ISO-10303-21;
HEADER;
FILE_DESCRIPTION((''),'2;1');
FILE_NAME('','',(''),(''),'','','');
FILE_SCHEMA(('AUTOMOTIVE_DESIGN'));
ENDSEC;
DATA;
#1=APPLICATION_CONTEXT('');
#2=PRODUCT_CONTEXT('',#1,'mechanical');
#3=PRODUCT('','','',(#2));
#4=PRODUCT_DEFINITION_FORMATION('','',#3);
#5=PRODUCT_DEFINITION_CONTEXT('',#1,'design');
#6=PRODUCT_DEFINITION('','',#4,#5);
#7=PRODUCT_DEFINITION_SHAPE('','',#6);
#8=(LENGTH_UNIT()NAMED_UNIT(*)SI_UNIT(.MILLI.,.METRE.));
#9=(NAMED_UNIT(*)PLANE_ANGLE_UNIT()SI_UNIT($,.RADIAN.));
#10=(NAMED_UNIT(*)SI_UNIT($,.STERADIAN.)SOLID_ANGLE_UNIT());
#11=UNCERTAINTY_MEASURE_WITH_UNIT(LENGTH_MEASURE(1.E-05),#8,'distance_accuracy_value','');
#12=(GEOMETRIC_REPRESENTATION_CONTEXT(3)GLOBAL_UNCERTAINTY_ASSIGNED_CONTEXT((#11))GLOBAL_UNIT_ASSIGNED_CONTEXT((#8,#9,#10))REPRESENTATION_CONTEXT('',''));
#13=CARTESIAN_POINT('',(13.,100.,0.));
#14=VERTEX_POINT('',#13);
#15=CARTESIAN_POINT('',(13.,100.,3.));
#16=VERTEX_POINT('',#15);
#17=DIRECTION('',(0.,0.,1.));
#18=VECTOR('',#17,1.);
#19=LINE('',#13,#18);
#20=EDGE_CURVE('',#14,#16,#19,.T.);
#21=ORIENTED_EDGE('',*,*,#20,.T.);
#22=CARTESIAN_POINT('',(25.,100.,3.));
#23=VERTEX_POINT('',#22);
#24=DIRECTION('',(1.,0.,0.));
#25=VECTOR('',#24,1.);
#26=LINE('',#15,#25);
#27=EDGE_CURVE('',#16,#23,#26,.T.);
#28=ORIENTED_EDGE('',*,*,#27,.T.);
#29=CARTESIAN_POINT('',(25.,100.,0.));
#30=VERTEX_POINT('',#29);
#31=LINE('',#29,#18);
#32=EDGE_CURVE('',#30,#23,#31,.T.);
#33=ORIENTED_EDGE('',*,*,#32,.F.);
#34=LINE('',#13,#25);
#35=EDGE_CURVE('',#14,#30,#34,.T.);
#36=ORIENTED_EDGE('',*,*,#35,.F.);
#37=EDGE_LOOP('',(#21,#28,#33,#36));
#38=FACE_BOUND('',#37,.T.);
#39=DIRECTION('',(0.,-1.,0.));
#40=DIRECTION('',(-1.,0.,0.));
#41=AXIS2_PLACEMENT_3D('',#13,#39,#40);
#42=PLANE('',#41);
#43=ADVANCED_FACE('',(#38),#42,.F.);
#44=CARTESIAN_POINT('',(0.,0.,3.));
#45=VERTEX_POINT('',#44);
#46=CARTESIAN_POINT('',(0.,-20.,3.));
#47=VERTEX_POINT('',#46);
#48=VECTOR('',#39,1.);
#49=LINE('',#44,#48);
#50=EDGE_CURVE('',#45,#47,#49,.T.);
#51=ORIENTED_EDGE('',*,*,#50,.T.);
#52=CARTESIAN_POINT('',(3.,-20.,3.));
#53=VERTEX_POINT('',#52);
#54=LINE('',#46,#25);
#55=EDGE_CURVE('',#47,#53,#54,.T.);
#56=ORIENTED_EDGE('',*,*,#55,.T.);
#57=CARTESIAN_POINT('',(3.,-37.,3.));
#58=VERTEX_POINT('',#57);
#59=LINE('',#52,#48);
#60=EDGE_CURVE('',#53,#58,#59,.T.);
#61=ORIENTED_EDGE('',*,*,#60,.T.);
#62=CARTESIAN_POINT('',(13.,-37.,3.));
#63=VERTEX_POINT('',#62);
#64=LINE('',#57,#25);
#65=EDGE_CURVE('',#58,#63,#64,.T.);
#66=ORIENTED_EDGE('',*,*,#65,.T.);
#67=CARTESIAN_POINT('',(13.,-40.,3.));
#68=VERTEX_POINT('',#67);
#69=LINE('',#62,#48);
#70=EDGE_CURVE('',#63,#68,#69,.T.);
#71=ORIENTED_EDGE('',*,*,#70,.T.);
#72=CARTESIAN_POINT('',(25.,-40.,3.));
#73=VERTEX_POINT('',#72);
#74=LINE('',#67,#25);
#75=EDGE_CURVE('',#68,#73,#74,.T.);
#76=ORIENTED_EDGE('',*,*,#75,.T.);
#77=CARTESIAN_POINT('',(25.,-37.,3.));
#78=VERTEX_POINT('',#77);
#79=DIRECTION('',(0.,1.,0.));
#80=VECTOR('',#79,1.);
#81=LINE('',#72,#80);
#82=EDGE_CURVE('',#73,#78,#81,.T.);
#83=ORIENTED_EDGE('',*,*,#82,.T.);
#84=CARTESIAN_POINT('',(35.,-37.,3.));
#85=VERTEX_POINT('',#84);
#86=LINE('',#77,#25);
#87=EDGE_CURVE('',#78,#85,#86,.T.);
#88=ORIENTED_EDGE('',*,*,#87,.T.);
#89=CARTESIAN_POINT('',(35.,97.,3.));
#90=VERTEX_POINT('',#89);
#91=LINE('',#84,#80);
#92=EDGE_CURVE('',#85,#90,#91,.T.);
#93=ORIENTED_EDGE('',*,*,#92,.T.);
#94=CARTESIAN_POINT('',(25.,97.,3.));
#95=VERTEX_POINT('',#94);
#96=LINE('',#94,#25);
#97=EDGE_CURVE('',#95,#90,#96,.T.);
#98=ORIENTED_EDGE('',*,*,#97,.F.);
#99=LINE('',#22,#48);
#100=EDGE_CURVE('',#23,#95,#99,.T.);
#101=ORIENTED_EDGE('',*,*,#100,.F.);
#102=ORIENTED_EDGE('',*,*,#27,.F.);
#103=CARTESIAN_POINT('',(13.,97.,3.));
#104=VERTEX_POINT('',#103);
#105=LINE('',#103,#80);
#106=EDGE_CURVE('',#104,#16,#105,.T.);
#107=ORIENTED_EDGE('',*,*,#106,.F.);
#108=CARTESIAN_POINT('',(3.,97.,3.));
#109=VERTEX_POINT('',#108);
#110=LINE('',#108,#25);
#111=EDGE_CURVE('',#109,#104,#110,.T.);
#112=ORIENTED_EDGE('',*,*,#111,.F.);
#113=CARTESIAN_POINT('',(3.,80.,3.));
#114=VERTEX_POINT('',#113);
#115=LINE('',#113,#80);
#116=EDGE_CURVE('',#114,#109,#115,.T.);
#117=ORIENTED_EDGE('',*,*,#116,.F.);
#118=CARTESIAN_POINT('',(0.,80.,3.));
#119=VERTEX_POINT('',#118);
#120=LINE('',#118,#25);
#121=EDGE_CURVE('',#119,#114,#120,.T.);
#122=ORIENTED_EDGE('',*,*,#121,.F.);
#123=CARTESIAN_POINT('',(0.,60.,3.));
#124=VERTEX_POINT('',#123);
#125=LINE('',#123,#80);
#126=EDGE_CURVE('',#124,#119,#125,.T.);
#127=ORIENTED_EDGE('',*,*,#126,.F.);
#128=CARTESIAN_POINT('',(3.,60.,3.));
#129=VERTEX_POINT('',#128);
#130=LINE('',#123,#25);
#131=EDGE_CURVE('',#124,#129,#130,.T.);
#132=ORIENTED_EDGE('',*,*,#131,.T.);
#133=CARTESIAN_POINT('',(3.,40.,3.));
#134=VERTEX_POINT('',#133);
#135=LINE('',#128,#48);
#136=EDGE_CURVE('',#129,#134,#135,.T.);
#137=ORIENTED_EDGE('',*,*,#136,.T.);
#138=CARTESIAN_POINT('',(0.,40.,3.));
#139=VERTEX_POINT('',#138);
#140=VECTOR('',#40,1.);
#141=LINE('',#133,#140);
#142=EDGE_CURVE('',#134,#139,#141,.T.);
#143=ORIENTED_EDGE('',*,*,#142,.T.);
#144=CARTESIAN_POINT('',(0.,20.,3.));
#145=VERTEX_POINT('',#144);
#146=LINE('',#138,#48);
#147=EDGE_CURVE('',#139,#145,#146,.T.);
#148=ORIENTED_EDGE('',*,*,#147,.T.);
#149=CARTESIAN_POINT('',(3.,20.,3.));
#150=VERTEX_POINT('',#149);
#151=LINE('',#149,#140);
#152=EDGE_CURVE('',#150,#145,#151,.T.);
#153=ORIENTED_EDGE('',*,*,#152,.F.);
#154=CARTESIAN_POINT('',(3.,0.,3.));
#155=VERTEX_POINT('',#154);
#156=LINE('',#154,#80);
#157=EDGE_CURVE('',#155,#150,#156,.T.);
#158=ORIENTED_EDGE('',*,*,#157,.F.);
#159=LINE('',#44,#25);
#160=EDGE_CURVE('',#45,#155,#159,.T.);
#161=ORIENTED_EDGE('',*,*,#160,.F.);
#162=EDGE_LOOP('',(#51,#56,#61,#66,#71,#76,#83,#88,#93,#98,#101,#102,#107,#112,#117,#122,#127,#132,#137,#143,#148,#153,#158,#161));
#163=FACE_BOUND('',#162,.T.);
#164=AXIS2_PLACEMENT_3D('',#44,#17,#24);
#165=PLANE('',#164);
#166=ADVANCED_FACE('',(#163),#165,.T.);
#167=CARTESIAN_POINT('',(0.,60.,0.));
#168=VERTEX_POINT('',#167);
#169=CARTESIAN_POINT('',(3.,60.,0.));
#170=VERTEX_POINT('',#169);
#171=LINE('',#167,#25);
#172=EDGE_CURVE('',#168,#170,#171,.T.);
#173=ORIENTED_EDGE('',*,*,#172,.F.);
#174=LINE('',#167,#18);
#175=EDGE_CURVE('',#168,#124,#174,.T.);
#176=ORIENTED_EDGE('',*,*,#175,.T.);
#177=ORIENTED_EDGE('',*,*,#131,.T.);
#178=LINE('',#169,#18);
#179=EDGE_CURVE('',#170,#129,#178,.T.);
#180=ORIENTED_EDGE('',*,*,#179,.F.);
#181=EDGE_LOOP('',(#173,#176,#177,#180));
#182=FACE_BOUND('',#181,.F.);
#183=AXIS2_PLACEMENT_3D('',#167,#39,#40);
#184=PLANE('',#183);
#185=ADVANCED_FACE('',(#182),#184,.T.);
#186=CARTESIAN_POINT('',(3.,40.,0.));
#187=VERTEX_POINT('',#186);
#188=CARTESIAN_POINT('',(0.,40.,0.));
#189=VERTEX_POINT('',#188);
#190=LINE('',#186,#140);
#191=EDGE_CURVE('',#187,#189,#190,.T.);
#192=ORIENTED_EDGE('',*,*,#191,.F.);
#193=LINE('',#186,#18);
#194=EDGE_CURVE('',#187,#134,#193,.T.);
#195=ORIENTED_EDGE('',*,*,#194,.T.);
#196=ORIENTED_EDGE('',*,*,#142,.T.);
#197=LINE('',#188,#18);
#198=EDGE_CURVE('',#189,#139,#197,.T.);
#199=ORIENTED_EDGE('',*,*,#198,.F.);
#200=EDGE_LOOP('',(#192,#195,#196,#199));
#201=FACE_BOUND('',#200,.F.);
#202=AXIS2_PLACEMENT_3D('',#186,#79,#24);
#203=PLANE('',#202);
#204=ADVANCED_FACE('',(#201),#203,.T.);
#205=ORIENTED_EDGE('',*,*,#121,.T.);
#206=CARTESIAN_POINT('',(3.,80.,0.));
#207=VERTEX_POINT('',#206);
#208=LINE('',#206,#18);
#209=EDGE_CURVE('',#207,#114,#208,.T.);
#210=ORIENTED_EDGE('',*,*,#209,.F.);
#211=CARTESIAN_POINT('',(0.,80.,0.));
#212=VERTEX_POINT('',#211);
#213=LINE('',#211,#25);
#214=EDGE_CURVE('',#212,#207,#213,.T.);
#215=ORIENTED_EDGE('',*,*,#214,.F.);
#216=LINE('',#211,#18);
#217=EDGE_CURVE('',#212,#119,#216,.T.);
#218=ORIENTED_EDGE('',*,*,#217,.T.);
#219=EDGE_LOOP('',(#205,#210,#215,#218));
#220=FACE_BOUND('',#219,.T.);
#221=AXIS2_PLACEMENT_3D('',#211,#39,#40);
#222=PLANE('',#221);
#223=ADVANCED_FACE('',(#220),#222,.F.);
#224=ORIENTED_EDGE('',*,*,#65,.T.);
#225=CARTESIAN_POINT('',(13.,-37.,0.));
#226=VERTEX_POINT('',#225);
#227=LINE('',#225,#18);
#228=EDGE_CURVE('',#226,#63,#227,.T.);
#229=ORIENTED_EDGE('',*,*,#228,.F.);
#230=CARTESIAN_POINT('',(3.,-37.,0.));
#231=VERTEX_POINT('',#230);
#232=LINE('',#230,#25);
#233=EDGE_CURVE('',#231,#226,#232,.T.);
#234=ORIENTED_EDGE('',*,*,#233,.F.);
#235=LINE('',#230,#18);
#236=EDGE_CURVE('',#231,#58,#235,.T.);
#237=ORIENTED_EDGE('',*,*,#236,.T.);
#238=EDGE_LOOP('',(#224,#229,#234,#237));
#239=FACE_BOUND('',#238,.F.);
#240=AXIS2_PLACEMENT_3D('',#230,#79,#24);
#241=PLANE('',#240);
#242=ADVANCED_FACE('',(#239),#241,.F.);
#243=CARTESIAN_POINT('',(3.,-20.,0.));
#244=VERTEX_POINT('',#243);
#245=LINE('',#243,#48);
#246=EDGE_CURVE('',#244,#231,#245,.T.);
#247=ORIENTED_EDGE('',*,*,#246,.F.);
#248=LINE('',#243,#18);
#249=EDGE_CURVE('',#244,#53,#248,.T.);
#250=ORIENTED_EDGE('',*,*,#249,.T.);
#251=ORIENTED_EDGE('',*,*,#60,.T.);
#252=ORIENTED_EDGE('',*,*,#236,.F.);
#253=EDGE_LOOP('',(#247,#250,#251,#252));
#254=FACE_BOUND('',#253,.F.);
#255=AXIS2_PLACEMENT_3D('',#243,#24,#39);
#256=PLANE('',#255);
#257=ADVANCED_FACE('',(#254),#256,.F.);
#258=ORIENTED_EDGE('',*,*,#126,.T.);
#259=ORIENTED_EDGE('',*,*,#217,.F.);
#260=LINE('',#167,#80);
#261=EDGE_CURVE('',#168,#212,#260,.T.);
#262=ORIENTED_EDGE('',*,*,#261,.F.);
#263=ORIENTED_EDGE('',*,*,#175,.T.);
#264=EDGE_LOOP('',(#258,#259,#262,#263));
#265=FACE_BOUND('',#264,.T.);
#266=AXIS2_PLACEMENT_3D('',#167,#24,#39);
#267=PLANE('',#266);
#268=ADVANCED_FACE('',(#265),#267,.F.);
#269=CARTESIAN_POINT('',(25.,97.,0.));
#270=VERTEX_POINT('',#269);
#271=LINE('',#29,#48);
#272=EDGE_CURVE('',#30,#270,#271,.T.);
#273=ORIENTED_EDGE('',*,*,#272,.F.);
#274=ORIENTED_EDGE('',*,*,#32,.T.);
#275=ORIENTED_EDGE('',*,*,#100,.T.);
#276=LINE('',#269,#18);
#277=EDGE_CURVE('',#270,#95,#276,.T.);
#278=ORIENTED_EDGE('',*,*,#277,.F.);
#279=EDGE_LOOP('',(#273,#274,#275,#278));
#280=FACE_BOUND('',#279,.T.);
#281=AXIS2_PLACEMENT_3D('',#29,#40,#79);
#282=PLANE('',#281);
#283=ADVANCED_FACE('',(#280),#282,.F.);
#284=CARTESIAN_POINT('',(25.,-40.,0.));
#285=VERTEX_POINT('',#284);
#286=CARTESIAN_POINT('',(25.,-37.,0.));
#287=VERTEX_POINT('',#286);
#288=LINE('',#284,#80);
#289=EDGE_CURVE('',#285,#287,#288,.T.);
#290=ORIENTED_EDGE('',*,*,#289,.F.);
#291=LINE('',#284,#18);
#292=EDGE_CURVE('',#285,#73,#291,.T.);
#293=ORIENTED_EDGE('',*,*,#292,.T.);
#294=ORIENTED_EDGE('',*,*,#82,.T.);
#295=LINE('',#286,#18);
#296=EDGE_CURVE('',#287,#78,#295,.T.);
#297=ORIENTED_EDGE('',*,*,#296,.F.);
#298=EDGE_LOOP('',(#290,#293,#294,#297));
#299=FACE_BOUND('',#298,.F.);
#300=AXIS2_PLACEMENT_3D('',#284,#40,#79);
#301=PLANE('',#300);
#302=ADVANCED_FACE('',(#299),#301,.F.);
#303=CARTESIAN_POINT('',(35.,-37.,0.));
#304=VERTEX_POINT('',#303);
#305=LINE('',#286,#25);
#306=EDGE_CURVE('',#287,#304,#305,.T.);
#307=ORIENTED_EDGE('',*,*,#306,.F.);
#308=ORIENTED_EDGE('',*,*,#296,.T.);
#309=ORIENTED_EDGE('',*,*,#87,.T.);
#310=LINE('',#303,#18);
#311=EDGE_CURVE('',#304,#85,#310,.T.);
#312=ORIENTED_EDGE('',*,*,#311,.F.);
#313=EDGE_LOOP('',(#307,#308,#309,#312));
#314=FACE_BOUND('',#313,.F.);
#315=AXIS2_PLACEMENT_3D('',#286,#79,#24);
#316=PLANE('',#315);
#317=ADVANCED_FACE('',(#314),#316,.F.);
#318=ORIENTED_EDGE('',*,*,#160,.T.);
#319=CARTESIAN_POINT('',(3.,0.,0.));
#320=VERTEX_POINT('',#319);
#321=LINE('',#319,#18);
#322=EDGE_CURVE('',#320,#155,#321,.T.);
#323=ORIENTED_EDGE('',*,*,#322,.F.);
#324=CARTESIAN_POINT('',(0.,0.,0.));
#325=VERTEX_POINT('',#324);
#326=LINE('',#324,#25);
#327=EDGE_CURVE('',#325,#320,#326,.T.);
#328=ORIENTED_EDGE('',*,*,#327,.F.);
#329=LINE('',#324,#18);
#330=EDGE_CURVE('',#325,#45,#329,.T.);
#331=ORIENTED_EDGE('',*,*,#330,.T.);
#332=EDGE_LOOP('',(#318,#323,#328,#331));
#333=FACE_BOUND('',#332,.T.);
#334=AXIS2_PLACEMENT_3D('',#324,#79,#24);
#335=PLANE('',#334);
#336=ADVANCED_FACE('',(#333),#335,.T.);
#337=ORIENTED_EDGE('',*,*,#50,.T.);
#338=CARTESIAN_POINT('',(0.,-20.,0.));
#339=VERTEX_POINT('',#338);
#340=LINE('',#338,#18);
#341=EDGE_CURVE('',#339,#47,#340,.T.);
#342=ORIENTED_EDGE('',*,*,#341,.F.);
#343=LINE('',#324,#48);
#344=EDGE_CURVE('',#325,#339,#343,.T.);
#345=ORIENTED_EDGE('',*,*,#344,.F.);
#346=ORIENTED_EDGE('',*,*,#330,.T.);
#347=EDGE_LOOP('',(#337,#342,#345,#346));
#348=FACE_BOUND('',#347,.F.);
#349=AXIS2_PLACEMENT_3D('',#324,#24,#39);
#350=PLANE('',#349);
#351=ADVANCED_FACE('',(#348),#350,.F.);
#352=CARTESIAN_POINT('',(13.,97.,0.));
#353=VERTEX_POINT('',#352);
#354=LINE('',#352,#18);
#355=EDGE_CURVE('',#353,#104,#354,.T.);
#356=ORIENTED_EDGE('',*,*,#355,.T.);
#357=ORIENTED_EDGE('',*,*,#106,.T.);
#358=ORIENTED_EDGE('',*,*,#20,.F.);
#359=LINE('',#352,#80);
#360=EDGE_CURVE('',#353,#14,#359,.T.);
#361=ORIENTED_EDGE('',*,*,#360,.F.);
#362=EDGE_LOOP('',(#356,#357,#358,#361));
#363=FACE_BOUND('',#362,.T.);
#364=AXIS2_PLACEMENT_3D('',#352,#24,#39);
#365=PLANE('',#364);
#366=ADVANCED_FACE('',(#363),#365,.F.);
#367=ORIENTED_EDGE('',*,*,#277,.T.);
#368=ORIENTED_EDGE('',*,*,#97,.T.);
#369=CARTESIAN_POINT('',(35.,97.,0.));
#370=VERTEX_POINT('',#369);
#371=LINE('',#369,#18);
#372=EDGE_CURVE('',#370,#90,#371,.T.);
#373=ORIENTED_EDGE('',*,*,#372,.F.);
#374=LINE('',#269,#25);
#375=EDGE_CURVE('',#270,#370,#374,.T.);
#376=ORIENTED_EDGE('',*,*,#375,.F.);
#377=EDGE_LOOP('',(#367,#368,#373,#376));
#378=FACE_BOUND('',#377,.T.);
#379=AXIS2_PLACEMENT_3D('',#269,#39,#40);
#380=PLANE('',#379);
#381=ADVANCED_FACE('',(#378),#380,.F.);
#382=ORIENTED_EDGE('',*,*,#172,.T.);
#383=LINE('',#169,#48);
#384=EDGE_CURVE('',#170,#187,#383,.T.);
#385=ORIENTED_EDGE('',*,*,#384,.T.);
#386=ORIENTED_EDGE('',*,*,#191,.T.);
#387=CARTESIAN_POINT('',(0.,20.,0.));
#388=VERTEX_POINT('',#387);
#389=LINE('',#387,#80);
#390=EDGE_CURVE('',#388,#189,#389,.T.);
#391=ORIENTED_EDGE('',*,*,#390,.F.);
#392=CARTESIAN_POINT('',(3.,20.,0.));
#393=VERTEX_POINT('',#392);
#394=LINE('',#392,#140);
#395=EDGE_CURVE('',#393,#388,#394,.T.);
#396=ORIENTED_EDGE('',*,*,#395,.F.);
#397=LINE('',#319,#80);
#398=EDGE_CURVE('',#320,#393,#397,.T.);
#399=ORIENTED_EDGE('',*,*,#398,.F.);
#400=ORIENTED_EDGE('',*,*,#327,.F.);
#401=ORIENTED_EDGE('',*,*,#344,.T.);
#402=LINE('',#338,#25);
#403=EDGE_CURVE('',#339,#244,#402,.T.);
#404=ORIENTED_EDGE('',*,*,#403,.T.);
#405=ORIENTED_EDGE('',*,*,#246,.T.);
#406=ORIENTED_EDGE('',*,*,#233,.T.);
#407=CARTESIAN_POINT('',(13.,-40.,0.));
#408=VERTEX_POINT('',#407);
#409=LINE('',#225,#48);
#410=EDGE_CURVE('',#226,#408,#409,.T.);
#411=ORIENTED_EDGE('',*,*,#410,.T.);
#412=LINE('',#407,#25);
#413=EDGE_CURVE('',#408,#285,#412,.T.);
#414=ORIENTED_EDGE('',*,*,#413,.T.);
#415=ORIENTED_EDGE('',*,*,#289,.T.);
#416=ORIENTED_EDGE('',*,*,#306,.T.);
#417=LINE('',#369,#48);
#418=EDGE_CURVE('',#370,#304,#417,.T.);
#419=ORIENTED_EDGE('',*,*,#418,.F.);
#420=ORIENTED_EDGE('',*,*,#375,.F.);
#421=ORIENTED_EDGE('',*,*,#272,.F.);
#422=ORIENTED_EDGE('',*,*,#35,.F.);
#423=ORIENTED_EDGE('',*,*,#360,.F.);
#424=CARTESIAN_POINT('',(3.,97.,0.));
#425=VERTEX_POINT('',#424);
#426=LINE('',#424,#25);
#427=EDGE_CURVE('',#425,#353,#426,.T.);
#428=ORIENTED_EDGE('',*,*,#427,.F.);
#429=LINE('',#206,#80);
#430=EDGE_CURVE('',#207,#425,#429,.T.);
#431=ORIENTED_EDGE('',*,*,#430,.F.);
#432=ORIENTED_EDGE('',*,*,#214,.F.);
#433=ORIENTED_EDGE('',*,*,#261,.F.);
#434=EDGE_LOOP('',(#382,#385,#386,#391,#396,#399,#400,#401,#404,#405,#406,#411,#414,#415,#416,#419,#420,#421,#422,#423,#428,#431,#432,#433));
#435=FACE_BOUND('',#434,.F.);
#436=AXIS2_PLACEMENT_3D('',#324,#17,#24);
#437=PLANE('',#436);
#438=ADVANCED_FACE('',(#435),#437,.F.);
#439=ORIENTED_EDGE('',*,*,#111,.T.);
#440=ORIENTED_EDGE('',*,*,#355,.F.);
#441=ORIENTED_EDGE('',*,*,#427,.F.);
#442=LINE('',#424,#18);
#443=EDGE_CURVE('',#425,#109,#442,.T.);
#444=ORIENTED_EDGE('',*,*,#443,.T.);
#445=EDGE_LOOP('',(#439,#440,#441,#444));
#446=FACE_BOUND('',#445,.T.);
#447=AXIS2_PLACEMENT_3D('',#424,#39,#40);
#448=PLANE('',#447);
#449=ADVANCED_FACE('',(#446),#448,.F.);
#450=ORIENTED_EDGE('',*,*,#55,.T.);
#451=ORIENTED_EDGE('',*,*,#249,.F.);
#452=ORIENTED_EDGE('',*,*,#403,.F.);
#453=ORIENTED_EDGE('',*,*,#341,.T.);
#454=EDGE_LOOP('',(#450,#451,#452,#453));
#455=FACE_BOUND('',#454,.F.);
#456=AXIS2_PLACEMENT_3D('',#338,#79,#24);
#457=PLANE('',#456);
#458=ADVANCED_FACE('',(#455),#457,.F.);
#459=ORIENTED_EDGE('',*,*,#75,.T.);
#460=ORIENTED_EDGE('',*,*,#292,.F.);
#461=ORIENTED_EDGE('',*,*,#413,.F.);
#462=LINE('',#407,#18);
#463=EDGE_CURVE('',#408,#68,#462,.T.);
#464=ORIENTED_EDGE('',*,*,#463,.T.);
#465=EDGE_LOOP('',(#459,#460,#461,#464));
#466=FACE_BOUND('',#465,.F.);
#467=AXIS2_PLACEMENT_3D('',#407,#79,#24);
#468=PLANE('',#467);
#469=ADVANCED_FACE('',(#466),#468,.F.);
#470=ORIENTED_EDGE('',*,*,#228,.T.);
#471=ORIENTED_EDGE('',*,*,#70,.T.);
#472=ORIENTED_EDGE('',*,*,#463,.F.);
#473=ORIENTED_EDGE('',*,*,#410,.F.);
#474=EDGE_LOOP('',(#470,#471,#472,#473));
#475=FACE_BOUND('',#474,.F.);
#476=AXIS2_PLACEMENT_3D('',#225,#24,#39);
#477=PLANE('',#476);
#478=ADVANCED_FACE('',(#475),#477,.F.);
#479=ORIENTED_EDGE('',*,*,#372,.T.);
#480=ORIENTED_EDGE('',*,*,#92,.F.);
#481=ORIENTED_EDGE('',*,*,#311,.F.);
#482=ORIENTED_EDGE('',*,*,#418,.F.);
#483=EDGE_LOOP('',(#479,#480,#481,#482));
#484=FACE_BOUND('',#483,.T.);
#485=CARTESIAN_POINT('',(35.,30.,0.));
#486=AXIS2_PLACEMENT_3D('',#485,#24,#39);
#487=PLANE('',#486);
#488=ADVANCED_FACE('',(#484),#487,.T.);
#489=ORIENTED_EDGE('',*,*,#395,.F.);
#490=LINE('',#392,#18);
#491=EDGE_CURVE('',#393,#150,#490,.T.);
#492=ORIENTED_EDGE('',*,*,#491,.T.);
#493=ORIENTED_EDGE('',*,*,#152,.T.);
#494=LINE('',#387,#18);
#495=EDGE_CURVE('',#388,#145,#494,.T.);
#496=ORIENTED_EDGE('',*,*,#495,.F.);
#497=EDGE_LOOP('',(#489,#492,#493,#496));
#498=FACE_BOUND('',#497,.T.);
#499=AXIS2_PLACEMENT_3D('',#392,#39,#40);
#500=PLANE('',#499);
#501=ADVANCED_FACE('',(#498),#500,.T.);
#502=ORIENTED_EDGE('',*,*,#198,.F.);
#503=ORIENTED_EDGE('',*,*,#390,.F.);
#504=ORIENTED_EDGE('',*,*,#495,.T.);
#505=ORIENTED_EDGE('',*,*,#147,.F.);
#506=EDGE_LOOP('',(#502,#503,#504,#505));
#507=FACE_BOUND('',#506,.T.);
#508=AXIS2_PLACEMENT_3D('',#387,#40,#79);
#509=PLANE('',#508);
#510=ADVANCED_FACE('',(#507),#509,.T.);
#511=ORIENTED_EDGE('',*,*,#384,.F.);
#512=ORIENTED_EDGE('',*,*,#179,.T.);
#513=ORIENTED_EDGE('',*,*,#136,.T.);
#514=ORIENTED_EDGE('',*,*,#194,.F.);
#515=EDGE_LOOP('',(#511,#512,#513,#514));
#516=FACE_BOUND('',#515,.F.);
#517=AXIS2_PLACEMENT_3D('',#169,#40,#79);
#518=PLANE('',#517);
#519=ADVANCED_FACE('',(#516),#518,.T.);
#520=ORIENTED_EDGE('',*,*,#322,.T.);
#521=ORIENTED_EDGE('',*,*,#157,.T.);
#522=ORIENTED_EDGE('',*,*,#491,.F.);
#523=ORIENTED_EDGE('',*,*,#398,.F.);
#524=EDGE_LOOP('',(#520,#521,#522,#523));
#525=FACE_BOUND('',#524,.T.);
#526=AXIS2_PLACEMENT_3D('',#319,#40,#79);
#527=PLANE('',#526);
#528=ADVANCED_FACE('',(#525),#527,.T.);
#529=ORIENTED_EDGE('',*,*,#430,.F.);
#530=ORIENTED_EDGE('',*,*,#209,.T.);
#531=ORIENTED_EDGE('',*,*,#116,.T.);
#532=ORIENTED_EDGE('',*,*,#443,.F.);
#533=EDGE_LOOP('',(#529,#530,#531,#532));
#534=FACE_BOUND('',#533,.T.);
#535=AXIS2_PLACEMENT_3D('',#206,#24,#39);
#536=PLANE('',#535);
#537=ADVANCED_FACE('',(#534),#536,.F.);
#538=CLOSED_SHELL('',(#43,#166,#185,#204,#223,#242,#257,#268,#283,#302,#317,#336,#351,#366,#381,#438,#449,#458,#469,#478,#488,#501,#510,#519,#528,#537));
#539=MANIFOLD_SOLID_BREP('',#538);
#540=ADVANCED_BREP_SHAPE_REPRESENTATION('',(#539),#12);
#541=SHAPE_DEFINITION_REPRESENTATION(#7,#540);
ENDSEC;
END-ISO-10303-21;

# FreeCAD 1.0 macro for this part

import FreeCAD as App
import Part
import Sketcher

V = App.Vector
Q = App.Units.Quantity


def add_polygon(sketch, points):
    """Adds a closed chain of lines whose ends are joined by coincident constraints."""
    first, n = sketch.GeometryCount, len(points)
    for a, b in zip(points, points[1:] + points[:1]):
        sketch.addGeometry(Part.LineSegment(App.Vector(*a, 0), App.Vector(*b, 0)), False)
    for i in range(n):
        sketch.addConstraint(Sketcher.Constraint("Coincident", first + i, 2, first + (i + 1) % n, 1))

doc = App.newDocument("Part")
body = doc.addObject("PartDesign::Body", "Body")

sketch1 = doc.addObject("Sketcher::SketchObject", "Sketch")
body.addObject(sketch1)
sketch1.AttachmentSupport = (doc.XY_Plane, [""])
sketch1.MapMode = "FlatFace"
add_polygon(sketch1, [(3, 0), (0, 0), (0, -20), (3, -20), (3, -37), (13, -37), (13, -40), (25, -40), (25, -37), (35, -37), (35, 30), (0, 30), (0, 20), (3, 20)])
sketch1.addConstraint([
    Sketcher.Constraint("Horizontal", 0),
    Sketcher.Constraint("Vertical", 1),
    Sketcher.Constraint("Horizontal", 2),
    Sketcher.Constraint("Vertical", 3),
    Sketcher.Constraint("Horizontal", 4),
    Sketcher.Constraint("Vertical", 5),
    Sketcher.Constraint("Horizontal", 6),
    Sketcher.Constraint("Vertical", 7),
    Sketcher.Constraint("Horizontal", 8),
    Sketcher.Constraint("Vertical", 9),
    Sketcher.Constraint("Horizontal", 10),
    Sketcher.Constraint("Vertical", 11),
    Sketcher.Constraint("Horizontal", 12),
    Sketcher.Constraint("Vertical", 13),
    Sketcher.Constraint("Coincident", 0, 2, -1, 1),
    Sketcher.Constraint("Symmetric", 1, 2, 11, 2, -1, 1),
    Sketcher.Constraint("Horizontal", 4, 2, 7, 2),
    Sketcher.Constraint("Vertical", 3, 2, 12, 2),
    Sketcher.Constraint("Equal", 4, 8),
    Sketcher.Constraint("Equal", 12, 5),
    Sketcher.Constraint("Equal", 8, 11),
    Sketcher.Constraint("DistanceX", 0, 2, 0, 1, Q("3 mm")),
    Sketcher.Constraint("DistanceX", 4, 1, 4, 2, Q("10 mm")),
    Sketcher.Constraint("DistanceX", 6, 1, 6, 2, Q("12 mm")),
    Sketcher.Constraint("DistanceY", 1, 2, 1, 1, Q("20 mm")),
    Sketcher.Constraint("DistanceY", 3, 2, 3, 1, Q("17 mm")),
])
pad1 = doc.addObject("PartDesign::Pad", "Pad")
body.addObject(pad1)
pad1.Profile = sketch1
pad1.Length = 3
doc.recompute()

datumplane = doc.addObject("PartDesign::Plane", "DatumPlane")
body.addObject(datumplane)
datumplane.AttachmentSupport = (doc.XZ_Plane, [""])
datumplane.MapMode = "FlatFace"
datumplane.AttachmentOffset = App.Placement(V(0, 0, -30), App.Rotation())
mirrored = doc.addObject("PartDesign::Mirrored", "Mirrored")
body.addObject(mirrored)
mirrored.Originals = [pad1]
mirrored.MirrorPlane = (datumplane, [""])
body.Tip = mirrored

doc.recompute()
